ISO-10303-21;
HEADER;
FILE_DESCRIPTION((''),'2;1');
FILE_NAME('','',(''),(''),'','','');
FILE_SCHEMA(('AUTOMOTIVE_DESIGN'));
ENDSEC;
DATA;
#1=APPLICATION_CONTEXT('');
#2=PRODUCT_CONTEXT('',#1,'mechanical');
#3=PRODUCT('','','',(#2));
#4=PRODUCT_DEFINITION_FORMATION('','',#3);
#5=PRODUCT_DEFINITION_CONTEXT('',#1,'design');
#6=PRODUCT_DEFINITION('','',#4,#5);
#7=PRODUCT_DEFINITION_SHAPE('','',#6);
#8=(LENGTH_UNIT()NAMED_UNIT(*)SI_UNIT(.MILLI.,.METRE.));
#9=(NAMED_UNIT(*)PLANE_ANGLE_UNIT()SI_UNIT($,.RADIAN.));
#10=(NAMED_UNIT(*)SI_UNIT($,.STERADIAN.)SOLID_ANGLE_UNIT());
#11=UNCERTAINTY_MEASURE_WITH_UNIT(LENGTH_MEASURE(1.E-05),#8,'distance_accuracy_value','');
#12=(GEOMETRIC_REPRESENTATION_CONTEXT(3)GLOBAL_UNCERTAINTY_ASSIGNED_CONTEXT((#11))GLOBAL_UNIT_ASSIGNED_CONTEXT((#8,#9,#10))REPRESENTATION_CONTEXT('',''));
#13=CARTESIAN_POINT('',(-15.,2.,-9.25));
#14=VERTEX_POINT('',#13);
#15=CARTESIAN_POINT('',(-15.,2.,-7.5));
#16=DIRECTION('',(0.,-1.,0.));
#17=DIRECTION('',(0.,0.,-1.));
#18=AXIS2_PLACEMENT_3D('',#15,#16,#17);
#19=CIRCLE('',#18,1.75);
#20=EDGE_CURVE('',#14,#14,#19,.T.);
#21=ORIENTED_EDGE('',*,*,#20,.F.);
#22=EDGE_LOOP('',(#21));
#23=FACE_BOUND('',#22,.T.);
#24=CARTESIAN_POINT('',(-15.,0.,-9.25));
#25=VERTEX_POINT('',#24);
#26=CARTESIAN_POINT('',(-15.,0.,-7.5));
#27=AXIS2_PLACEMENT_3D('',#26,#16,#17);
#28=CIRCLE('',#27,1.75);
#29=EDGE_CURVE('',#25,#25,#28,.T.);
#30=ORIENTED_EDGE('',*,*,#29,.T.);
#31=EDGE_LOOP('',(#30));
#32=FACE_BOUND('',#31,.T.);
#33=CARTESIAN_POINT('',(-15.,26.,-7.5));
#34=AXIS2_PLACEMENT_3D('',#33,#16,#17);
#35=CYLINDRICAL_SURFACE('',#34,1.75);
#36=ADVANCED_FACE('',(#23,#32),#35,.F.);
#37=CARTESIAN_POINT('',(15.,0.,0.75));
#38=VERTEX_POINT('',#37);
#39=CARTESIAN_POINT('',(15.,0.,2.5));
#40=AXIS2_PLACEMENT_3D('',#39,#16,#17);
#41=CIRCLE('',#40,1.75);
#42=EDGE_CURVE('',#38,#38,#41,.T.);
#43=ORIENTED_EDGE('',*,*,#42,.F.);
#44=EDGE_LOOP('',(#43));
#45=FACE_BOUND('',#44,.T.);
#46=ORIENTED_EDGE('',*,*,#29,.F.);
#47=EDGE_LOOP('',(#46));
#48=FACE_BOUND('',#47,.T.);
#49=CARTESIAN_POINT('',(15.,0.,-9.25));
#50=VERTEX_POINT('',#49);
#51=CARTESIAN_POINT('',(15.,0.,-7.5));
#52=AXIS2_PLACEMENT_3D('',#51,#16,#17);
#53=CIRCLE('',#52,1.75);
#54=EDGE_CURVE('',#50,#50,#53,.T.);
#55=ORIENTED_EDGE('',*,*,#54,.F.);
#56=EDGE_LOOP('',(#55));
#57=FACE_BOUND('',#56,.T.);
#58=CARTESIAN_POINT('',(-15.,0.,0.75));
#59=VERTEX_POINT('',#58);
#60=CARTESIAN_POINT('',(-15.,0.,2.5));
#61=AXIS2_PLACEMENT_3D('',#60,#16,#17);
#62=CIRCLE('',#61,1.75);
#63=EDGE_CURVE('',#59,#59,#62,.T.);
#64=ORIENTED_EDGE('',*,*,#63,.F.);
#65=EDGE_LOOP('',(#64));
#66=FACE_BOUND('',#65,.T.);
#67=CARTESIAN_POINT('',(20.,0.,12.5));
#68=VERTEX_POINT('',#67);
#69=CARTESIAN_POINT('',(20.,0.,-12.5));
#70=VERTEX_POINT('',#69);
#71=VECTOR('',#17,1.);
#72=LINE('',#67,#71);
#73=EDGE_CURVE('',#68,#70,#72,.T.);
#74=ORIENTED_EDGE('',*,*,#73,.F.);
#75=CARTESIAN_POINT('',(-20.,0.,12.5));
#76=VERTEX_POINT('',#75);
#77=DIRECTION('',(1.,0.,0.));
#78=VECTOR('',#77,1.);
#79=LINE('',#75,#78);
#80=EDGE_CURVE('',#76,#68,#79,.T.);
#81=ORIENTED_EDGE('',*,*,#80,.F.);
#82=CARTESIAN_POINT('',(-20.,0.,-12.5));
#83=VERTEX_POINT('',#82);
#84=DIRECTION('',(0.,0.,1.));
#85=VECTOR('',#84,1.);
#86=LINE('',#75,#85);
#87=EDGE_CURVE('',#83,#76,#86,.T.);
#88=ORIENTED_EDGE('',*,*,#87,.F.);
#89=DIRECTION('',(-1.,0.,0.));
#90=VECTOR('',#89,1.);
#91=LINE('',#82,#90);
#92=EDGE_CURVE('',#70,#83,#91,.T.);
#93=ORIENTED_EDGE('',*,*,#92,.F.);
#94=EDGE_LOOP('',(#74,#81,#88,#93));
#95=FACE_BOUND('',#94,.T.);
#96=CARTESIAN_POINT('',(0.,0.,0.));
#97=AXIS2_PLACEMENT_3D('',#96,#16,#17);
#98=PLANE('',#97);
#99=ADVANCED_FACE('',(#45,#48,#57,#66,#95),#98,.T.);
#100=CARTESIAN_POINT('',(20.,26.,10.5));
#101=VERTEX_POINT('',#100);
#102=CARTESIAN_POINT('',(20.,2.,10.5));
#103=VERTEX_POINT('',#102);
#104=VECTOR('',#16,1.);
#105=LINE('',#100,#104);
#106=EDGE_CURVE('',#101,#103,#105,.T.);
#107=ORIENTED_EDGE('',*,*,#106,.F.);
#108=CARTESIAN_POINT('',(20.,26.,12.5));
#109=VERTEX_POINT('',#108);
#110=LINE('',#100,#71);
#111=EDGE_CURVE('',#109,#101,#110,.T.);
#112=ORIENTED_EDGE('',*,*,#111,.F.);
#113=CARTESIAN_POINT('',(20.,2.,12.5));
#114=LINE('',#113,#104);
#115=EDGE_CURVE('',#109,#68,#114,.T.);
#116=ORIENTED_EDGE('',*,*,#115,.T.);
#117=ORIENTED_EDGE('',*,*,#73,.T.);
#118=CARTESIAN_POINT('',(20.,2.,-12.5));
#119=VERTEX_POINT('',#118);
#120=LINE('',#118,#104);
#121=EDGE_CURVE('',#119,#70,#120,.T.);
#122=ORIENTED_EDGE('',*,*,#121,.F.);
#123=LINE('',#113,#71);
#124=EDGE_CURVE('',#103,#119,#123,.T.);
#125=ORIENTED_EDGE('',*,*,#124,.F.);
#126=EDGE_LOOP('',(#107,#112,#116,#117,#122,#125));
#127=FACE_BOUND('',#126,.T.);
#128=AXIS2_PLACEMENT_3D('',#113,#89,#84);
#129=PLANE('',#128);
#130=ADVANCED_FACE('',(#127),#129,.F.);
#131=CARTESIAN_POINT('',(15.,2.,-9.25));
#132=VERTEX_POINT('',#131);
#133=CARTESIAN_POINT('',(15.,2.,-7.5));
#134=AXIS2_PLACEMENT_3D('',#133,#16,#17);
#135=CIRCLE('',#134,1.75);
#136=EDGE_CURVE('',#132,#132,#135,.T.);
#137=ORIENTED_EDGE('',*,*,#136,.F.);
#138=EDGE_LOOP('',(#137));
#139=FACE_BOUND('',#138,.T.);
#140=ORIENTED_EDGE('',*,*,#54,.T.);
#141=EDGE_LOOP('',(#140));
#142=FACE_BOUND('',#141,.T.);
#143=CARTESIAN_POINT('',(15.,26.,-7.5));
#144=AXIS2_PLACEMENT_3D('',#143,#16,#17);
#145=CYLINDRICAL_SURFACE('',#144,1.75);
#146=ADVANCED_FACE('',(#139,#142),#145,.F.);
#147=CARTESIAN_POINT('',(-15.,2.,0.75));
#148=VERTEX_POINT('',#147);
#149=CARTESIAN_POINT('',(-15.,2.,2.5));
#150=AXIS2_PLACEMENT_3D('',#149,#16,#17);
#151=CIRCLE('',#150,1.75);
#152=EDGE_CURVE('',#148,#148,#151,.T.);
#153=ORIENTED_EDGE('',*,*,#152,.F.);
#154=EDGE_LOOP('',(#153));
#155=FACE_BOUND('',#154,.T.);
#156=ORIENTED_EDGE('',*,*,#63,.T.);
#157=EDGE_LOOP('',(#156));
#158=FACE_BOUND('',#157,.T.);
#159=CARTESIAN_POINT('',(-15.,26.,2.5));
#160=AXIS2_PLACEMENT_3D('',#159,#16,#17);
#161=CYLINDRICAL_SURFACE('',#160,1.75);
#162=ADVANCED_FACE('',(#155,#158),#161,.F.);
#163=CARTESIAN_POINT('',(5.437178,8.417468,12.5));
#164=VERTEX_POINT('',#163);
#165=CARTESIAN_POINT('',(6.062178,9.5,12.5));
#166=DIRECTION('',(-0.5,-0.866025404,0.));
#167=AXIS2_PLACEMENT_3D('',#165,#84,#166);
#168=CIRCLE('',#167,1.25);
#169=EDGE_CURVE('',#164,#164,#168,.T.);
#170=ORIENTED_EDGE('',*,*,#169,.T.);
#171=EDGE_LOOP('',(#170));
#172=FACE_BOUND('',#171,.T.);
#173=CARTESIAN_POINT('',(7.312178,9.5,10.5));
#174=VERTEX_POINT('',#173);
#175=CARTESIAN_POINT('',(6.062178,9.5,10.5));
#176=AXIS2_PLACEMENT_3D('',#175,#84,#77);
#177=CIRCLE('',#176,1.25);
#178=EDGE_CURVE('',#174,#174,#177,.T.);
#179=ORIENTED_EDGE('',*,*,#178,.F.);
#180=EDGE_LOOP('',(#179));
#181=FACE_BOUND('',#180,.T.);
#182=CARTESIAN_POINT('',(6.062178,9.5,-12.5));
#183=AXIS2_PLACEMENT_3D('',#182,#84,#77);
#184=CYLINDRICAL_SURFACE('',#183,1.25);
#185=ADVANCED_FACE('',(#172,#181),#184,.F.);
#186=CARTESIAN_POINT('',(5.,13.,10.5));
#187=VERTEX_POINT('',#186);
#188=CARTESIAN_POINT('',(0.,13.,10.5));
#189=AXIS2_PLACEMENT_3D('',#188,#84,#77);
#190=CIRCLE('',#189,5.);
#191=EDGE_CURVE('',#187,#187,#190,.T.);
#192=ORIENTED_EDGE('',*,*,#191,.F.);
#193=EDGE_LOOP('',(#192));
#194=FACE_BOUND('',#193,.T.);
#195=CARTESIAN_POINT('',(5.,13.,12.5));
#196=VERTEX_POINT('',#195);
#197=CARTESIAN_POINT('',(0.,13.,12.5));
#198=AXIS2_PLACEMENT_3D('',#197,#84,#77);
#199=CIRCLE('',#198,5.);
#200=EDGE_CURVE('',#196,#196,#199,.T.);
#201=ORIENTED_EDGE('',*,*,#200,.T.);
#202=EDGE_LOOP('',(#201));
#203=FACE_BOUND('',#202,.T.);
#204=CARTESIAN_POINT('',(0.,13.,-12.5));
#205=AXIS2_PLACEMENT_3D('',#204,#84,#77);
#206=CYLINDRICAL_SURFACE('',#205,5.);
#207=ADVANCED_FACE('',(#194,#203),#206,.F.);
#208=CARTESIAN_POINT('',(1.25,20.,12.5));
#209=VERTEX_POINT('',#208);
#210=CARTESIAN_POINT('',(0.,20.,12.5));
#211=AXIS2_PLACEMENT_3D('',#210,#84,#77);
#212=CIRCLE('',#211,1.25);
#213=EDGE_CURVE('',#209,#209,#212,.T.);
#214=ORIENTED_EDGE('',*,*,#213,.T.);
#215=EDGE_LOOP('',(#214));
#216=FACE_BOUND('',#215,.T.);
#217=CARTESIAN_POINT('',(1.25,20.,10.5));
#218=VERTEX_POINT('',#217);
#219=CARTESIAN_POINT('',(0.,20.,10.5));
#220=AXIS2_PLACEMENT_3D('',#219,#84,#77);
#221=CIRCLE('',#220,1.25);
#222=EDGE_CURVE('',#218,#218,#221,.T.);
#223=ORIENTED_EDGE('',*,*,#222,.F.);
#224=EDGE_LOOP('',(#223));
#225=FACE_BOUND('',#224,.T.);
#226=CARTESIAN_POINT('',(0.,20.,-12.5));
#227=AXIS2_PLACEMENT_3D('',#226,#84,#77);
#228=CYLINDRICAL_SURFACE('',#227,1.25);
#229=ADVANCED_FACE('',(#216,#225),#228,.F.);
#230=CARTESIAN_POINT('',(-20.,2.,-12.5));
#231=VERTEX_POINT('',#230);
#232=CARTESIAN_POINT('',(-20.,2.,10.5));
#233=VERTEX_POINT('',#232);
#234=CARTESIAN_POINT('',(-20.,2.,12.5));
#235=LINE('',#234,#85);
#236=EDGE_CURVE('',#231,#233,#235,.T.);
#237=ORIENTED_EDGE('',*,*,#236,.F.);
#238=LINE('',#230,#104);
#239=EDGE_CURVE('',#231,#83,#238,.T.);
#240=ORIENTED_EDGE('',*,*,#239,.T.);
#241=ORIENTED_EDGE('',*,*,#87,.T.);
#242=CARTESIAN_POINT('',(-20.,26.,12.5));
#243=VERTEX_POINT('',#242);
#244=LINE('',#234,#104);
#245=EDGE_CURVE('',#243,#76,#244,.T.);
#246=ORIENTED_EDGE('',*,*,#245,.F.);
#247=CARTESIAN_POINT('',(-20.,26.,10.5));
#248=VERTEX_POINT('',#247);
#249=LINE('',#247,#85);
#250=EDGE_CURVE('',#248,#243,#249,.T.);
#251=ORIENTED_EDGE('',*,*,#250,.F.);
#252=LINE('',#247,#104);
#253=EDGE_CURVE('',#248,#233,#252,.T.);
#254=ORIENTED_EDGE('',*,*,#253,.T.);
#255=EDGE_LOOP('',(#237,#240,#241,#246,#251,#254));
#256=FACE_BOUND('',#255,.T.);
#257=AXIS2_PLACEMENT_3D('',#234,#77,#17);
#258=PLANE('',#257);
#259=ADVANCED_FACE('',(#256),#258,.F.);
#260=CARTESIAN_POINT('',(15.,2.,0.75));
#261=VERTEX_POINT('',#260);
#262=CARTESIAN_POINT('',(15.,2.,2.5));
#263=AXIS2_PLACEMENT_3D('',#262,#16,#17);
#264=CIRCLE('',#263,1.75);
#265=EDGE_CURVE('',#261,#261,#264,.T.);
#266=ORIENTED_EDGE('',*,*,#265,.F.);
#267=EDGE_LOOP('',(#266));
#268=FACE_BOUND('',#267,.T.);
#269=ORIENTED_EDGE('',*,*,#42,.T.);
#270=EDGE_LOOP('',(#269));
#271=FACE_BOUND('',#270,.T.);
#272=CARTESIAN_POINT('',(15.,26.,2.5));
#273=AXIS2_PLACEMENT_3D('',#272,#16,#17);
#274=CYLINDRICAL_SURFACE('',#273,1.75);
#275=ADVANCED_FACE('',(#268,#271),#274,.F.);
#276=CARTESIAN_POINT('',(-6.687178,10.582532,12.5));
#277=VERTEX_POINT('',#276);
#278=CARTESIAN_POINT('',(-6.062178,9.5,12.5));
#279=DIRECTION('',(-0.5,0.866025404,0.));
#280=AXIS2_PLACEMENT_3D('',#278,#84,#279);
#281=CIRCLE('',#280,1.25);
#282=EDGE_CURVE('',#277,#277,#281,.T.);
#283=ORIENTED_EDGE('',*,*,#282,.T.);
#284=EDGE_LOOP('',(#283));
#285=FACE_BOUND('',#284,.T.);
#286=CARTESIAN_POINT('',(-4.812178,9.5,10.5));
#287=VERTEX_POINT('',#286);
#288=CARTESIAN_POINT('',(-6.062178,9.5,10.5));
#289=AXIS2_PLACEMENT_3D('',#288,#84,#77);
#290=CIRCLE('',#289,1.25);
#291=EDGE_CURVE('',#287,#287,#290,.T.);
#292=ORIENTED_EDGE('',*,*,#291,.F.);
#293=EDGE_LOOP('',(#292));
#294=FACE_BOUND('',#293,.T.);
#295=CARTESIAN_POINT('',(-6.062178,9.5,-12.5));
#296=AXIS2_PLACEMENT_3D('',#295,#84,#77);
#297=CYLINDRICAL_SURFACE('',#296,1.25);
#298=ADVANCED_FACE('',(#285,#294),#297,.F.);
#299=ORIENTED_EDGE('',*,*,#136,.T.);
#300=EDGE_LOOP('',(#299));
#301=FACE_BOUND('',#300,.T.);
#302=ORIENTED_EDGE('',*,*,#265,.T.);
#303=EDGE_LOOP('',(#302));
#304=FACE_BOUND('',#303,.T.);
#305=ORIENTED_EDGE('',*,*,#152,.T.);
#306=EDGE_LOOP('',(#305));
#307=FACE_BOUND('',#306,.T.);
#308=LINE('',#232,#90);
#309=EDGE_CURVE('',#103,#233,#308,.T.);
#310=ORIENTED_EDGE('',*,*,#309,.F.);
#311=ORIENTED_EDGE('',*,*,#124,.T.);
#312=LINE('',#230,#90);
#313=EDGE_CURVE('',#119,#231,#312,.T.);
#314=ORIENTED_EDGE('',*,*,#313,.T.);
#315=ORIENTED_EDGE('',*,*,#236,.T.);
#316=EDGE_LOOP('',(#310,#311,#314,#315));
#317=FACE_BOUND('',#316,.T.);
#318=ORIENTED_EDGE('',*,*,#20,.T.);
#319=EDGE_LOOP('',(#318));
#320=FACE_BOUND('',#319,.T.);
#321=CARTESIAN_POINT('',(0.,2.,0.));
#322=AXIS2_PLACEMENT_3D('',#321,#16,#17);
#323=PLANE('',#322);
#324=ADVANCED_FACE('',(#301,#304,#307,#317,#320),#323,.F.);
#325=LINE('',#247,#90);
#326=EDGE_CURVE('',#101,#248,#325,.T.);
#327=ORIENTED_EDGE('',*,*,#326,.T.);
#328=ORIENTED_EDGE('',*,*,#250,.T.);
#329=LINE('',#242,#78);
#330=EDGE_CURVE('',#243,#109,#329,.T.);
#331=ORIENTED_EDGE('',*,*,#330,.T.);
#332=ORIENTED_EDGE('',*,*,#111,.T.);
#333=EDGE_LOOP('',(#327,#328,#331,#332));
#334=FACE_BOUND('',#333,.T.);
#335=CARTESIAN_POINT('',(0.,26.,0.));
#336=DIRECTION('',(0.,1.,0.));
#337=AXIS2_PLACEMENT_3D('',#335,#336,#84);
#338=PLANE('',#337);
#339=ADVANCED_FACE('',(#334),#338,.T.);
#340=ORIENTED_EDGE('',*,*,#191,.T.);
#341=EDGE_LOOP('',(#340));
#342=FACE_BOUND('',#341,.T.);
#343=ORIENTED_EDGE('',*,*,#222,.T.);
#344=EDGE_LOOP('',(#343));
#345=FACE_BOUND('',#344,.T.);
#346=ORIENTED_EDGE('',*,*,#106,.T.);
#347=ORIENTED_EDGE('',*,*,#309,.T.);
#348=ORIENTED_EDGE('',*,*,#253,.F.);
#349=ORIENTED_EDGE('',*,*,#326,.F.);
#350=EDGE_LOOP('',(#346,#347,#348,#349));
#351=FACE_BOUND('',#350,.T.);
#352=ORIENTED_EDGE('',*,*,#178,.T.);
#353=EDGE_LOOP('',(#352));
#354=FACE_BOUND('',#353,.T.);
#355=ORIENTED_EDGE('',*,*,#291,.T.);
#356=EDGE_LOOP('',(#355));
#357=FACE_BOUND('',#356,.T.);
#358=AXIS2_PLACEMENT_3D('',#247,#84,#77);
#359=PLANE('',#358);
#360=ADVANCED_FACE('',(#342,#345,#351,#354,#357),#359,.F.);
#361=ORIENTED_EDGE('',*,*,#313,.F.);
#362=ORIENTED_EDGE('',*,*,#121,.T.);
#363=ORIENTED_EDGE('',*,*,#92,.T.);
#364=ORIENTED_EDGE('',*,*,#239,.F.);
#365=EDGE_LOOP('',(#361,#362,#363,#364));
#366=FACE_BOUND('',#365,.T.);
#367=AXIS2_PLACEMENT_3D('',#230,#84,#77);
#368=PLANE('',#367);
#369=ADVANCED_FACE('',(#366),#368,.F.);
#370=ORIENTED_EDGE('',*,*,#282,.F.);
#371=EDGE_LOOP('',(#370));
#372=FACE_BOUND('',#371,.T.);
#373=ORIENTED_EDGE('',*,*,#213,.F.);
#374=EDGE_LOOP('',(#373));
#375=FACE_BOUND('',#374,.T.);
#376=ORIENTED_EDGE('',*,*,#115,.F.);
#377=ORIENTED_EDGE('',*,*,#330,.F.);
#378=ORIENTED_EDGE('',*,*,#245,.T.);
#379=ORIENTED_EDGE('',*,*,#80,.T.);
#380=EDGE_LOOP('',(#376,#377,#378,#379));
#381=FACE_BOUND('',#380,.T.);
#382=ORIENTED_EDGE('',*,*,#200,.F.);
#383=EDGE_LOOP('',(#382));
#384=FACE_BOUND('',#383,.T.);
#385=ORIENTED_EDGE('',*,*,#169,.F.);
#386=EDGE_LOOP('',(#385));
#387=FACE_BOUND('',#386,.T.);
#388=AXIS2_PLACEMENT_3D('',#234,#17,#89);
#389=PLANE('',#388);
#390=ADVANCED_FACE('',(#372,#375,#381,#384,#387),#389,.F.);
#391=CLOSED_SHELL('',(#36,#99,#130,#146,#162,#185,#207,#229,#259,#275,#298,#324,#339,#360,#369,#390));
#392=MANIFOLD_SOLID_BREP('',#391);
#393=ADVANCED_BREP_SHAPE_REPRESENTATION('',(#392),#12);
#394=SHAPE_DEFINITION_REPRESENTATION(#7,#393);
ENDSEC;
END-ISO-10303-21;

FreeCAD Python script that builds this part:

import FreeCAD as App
import Part
import Sketcher

V = App.Vector
Q = App.Units.Quantity

doc = App.newDocument("Part")
body = doc.addObject("PartDesign::Body", "Body")

# Sketch on XZ plane
sketch1 = body.newObject("Sketcher::SketchObject", "Sketch")
sketch1.AttachmentSupport = (doc.getObject("XZ_Plane"), [""])
sketch1.MapMode = "FlatFace"
sketch1.addGeometry(Part.LineSegment(V(-20, -12.5, 0), V(-20, 12.5, 0)), False)
sketch1.addGeometry(Part.LineSegment(V(-20, 12.5, 0), V(20, 12.5, 0)), False)
sketch1.addGeometry(Part.LineSegment(V(20, 12.5, 0), V(20, -12.5, 0)), False)
sketch1.addGeometry(Part.LineSegment(V(20, -12.5, 0), V(-20, -12.5, 0)), False)
sketch1.addConstraint(Sketcher.Constraint("Coincident", 0, 2, 1, 1))
sketch1.addConstraint(Sketcher.Constraint("Coincident", 1, 2, 2, 1))
sketch1.addConstraint(Sketcher.Constraint("Coincident", 2, 2, 3, 1))
sketch1.addConstraint(Sketcher.Constraint("Coincident", 3, 2, 0, 1))
sketch1.addConstraint(Sketcher.Constraint("Vertical", 0))
sketch1.addConstraint(Sketcher.Constraint("Horizontal", 1))
sketch1.addConstraint(Sketcher.Constraint("Vertical", 2))
sketch1.addConstraint(Sketcher.Constraint("Horizontal", 3))
sketch1.addConstraint(Sketcher.Constraint("Symmetric", 0, 2, 2, 2, -1, 1))
sketch1.addConstraint(Sketcher.Constraint("DistanceX", 1, 1, 1, 2, Q("40 mm")))
sketch1.addConstraint(Sketcher.Constraint("DistanceY", 0, 1, 0, 2, Q("25 mm")))
pad1 = body.newObject("PartDesign::Pad", "Pad")
pad1.Profile = sketch1
pad1.Length = 2
pad1.Reversed = True

# Sketch on XZ plane
sketch2 = body.newObject("Sketcher::SketchObject", "Sketch001")
sketch2.AttachmentSupport = (doc.getObject("XZ_Plane"), [""])
sketch2.MapMode = "FlatFace"
sketch2.AttachmentOffset = App.Placement(V(0, 0, -2), App.Rotation())
sketch2.addGeometry(Part.LineSegment(V(-20, 10.5, 0), V(-20, 12.5, 0)), False)
sketch2.addGeometry(Part.LineSegment(V(-20, 12.5, 0), V(20, 12.5, 0)), False)
sketch2.addGeometry(Part.LineSegment(V(20, 12.5, 0), V(20, 10.5, 0)), False)
sketch2.addGeometry(Part.LineSegment(V(20, 10.5, 0), V(-20, 10.5, 0)), False)
sketch2.addConstraint(Sketcher.Constraint("Coincident", 0, 2, 1, 1))
sketch2.addConstraint(Sketcher.Constraint("Coincident", 1, 2, 2, 1))
sketch2.addConstraint(Sketcher.Constraint("Coincident", 2, 2, 3, 1))
sketch2.addConstraint(Sketcher.Constraint("Coincident", 3, 2, 0, 1))
sketch2.addConstraint(Sketcher.Constraint("Vertical", 0))
sketch2.addConstraint(Sketcher.Constraint("Horizontal", 1))
sketch2.addConstraint(Sketcher.Constraint("Vertical", 2))
sketch2.addConstraint(Sketcher.Constraint("Horizontal", 3))
sketch2.addConstraint(Sketcher.Constraint("DistanceX", 1, 1, 1, 2, Q("40 mm")))
sketch2.addConstraint(Sketcher.Constraint("DistanceY", 0, 1, 0, 2, Q("2 mm")))
sketch2.addConstraint(Sketcher.Constraint("DistanceX", 0, 2, -1, 1, Q("20 mm")))
sketch2.addConstraint(Sketcher.Constraint("DistanceY", -1, 1, 0, 2, Q("12.5 mm")))
pad2 = body.newObject("PartDesign::Pad", "Pad001")
pad2.Profile = sketch2
pad2.Length = 24
pad2.Reversed = True

# Sketch on XZ plane
sketch3 = body.newObject("Sketcher::SketchObject", "Sketch002")
sketch3.AttachmentSupport = (doc.getObject("XZ_Plane"), [""])
sketch3.MapMode = "FlatFace"
sketch3.addGeometry(Part.Circle(V(-15, -7.5, 0), V(0, 0, 1), 1.75), False)
sketch3.addGeometry(Part.Circle(V(15, -7.5, 0), V(0, 0, 1), 1.75), False)
sketch3.addConstraint(Sketcher.Constraint("Equal", 0, 1))
sketch3.addConstraint(Sketcher.Constraint("Symmetric", 0, 3, 1, 3, -2))
sketch3.addConstraint(Sketcher.Constraint("Diameter", 0, Q("3.5 mm")))
sketch3.addConstraint(Sketcher.Constraint("DistanceX", 0, 3, -1, 1, Q("15 mm")))
sketch3.addConstraint(Sketcher.Constraint("DistanceY", 0, 3, -1, 1, Q("7.5 mm")))
pocket1 = body.newObject("PartDesign::Pocket", "Pocket")
pocket1.Profile = sketch3
pocket1.Type = "ThroughAll"
doc.recompute()

linearpattern = body.newObject("PartDesign::LinearPattern", "LinearPattern")
linearpattern.Originals = [pocket1]
linearpattern.Direction = (doc.getObject("Z_Axis"), [""])
linearpattern.Mode = "offset"
linearpattern.Offset = 10
linearpattern.Occurrences = 2
body.Tip = linearpattern

# Sketch on XY plane
sketch4 = body.newObject("Sketcher::SketchObject", "Sketch003")
sketch4.AttachmentSupport = (doc.getObject("XY_Plane"), [""])
sketch4.MapMode = "FlatFace"
sketch4.AttachmentOffset = App.Placement(V(0, 0, 12.5), App.Rotation())
sketch4.addGeometry(Part.Circle(V(0, 13, 0), V(0, 0, 1), 5), False)
sketch4.addConstraint(Sketcher.Constraint("PointOnObject", 0, 3, -2))
sketch4.addConstraint(Sketcher.Constraint("Diameter", 0, Q("10 mm")))
sketch4.addConstraint(Sketcher.Constraint("DistanceY", -1, 1, 0, 3, Q("13 mm")))
pocket2 = body.newObject("PartDesign::Pocket", "Pocket001")
pocket2.Profile = sketch4
pocket2.Type = "ThroughAll"

# Sketch on XY plane
sketch5 = body.newObject("Sketcher::SketchObject", "Sketch004")
sketch5.AttachmentSupport = (doc.getObject("XY_Plane"), [""])
sketch5.MapMode = "FlatFace"
sketch5.AttachmentOffset = App.Placement(V(0, 0, 12.5), App.Rotation())
sketch5.addGeometry(Part.Circle(V(0, 20, 0), V(0, 0, 1), 1.25), False)
sketch5.addConstraint(Sketcher.Constraint("PointOnObject", 0, 3, -2))
sketch5.addConstraint(Sketcher.Constraint("Diameter", 0, Q("2.5 mm")))
sketch5.addConstraint(Sketcher.Constraint("DistanceY", -1, 1, 0, 3, Q("20 mm")))
pocket3 = body.newObject("PartDesign::Pocket", "Pocket002")
pocket3.Profile = sketch5
pocket3.Type = "ThroughAll"
doc.recompute()

datumline = body.newObject("PartDesign::Line", "DatumLine")
datumline.Placement = App.Placement(V(0, 13, 0), App.Rotation(V(0, 0, 1), V(0, 0, 1)))
polarpattern = body.newObject("PartDesign::PolarPattern", "PolarPattern")
polarpattern.Originals = [pocket3]
polarpattern.Axis = (datumline, [""])
polarpattern.Angle = 360
polarpattern.Occurrences = 3
body.Tip = polarpattern

doc.recompute()
